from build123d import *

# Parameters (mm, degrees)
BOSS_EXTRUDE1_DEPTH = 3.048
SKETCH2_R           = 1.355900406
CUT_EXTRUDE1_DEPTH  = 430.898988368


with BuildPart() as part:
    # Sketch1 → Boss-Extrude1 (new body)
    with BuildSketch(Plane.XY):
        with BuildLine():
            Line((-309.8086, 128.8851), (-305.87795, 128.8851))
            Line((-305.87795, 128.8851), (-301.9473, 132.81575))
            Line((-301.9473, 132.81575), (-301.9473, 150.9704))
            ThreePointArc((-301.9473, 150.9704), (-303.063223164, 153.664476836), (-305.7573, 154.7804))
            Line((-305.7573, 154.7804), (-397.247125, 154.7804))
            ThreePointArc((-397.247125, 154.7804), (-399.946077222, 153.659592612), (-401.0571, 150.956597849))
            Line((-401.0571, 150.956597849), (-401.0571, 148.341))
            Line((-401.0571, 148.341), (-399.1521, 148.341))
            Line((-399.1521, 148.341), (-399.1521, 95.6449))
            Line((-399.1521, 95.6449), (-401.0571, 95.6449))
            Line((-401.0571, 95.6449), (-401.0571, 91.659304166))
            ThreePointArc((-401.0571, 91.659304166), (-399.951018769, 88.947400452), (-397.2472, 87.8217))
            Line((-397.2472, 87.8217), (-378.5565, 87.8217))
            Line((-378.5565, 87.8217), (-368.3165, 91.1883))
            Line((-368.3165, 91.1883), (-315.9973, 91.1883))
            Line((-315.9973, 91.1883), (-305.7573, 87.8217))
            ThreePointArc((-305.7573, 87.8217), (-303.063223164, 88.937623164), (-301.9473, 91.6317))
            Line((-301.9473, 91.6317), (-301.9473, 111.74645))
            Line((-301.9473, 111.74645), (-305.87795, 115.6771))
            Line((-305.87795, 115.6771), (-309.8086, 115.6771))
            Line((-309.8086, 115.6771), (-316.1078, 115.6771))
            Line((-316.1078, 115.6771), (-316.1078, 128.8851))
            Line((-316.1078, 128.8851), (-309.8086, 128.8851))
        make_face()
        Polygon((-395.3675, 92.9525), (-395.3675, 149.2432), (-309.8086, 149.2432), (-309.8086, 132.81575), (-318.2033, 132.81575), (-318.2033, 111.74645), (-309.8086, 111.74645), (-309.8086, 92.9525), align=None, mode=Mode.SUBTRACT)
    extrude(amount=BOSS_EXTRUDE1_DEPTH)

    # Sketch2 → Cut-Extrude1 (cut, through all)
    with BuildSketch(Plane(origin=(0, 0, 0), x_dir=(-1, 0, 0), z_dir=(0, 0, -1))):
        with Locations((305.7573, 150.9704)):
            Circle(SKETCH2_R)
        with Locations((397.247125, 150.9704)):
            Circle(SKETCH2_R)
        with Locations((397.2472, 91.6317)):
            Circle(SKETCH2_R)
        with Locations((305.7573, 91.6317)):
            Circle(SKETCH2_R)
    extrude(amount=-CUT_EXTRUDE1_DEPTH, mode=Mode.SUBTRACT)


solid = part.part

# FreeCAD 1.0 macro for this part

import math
import FreeCAD as App
import Part
import Sketcher
Q = App.Units.Quantity

doc = App.newDocument("Part")
body = doc.addObject("PartDesign::Body", "Body")

# Sketch on XY plane
sketch1 = body.newObject("Sketcher::SketchObject", "Sketch")
sketch1.AttachmentSupport = (doc.getObject("XY_Plane"), [""])
sketch1.MapMode = "FlatFace"
sketch1.addGeometry(Part.LineSegment(App.Vector(-305.87795, 128.8851, 0), App.Vector(-301.9473, 132.81575, 0)), False)
sketch1.addGeometry(Part.LineSegment(App.Vector(-301.9473, 132.81575, 0), App.Vector(-301.9473, 150.9704, 0)), False)
sketch1.addGeometry(Part.ArcOfCircle(Part.Circle(App.Vector(-305.7573, 150.9704, 0), App.Vector(0, 0, 1), 3.81), math.radians(0), math.radians(90)), False)
sketch1.addGeometry(Part.LineSegment(App.Vector(-305.7573, 154.7804, 0), App.Vector(-397.247125, 154.7804, 0)), False)
sketch1.addGeometry(Part.ArcOfCircle(Part.Circle(App.Vector(-397.247125, 150.9704, 0), App.Vector(0, 0, 1), 3.81), math.radians(90), math.radians(180.207561)), False)
sketch1.addGeometry(Part.LineSegment(App.Vector(-401.0571, 150.956598, 0), App.Vector(-401.0571, 148.341, 0)), False)
sketch1.addGeometry(Part.LineSegment(App.Vector(-401.0571, 148.341, 0), App.Vector(-399.1521, 148.341, 0)), False)
sketch1.addGeometry(Part.LineSegment(App.Vector(-399.1521, 148.341, 0), App.Vector(-399.1521, 95.6449, 0)), False)
sketch1.addGeometry(Part.LineSegment(App.Vector(-399.1521, 95.6449, 0), App.Vector(-401.0571, 95.6449, 0)), False)
sketch1.addGeometry(Part.LineSegment(App.Vector(-401.0571, 95.6449, 0), App.Vector(-401.0571, 91.659304, 0)), False)
sketch1.addGeometry(Part.ArcOfCircle(Part.Circle(App.Vector(-397.2472, 91.6317, 0), App.Vector(0, 0, 1), 3.81), math.radians(179.584878), math.radians(270)), False)
sketch1.addGeometry(Part.LineSegment(App.Vector(-397.2472, 87.8217, 0), App.Vector(-378.5565, 87.8217, 0)), False)
sketch1.addGeometry(Part.LineSegment(App.Vector(-378.5565, 87.8217, 0), App.Vector(-368.3165, 91.1883, 0)), False)
sketch1.addGeometry(Part.LineSegment(App.Vector(-368.3165, 91.1883, 0), App.Vector(-315.9973, 91.1883, 0)), False)
sketch1.addGeometry(Part.LineSegment(App.Vector(-315.9973, 91.1883, 0), App.Vector(-305.7573, 87.8217, 0)), False)
sketch1.addGeometry(Part.ArcOfCircle(Part.Circle(App.Vector(-305.7573, 91.6317, 0), App.Vector(0, 0, 1), 3.81), math.radians(-90), math.radians(0)), False)
sketch1.addGeometry(Part.LineSegment(App.Vector(-301.9473, 91.6317, 0), App.Vector(-301.9473, 111.74645, 0)), False)
sketch1.addGeometry(Part.LineSegment(App.Vector(-301.9473, 111.74645, 0), App.Vector(-305.87795, 115.6771, 0)), False)
sketch1.addGeometry(Part.LineSegment(App.Vector(-305.87795, 115.6771, 0), App.Vector(-316.1078, 115.6771, 0)), False)
sketch1.addGeometry(Part.LineSegment(App.Vector(-316.1078, 115.6771, 0), App.Vector(-316.1078, 128.8851, 0)), False)
sketch1.addGeometry(Part.LineSegment(App.Vector(-316.1078, 128.8851, 0), App.Vector(-305.87795, 128.8851, 0)), False)
sketch1.addGeometry(Part.LineSegment(App.Vector(-309.8086, 92.9525, 0), App.Vector(-395.3675, 92.9525, 0)), False)
sketch1.addGeometry(Part.LineSegment(App.Vector(-395.3675, 92.9525, 0), App.Vector(-395.3675, 149.2432, 0)), False)
sketch1.addGeometry(Part.LineSegment(App.Vector(-395.3675, 149.2432, 0), App.Vector(-309.8086, 149.2432, 0)), False)
sketch1.addGeometry(Part.LineSegment(App.Vector(-309.8086, 149.2432, 0), App.Vector(-309.8086, 132.81575, 0)), False)
sketch1.addGeometry(Part.LineSegment(App.Vector(-309.8086, 132.81575, 0), App.Vector(-318.2033, 132.81575, 0)), False)
sketch1.addGeometry(Part.LineSegment(App.Vector(-318.2033, 132.81575, 0), App.Vector(-318.2033, 111.74645, 0)), False)
sketch1.addGeometry(Part.LineSegment(App.Vector(-318.2033, 111.74645, 0), App.Vector(-309.8086, 111.74645, 0)), False)
sketch1.addGeometry(Part.LineSegment(App.Vector(-309.8086, 111.74645, 0), App.Vector(-309.8086, 92.9525, 0)), False)
sketch1.addConstraint(Sketcher.Constraint("Coincident", 0, 2, 1, 1))
sketch1.addConstraint(Sketcher.Constraint("Tangent", 1, 2, 2, 1))
sketch1.addConstraint(Sketcher.Constraint("Tangent", 2, 2, 3, 1))
sketch1.addConstraint(Sketcher.Constraint("Tangent", 3, 2, 4, 1))
sketch1.addConstraint(Sketcher.Constraint("Coincident", 4, 2, 5, 1))
sketch1.addConstraint(Sketcher.Constraint("Coincident", 5, 2, 6, 1))
sketch1.addConstraint(Sketcher.Constraint("Coincident", 6, 2, 7, 1))
sketch1.addConstraint(Sketcher.Constraint("Coincident", 7, 2, 8, 1))
sketch1.addConstraint(Sketcher.Constraint("Coincident", 8, 2, 9, 1))
sketch1.addConstraint(Sketcher.Constraint("Coincident", 9, 2, 10, 1))
sketch1.addConstraint(Sketcher.Constraint("Tangent", 10, 2, 11, 1))
sketch1.addConstraint(Sketcher.Constraint("Coincident", 11, 2, 12, 1))
sketch1.addConstraint(Sketcher.Constraint("Coincident", 12, 2, 13, 1))
sketch1.addConstraint(Sketcher.Constraint("Coincident", 13, 2, 14, 1))
sketch1.addConstraint(Sketcher.Constraint("Coincident", 14, 2, 15, 1))
sketch1.addConstraint(Sketcher.Constraint("Tangent", 15, 2, 16, 1))
sketch1.addConstraint(Sketcher.Constraint("Coincident", 16, 2, 17, 1))
sketch1.addConstraint(Sketcher.Constraint("Coincident", 17, 2, 18, 1))
sketch1.addConstraint(Sketcher.Constraint("Coincident", 18, 2, 19, 1))
sketch1.addConstraint(Sketcher.Constraint("Coincident", 19, 2, 20, 1))
sketch1.addConstraint(Sketcher.Constraint("Coincident", 20, 2, 0, 1))
sketch1.addConstraint(Sketcher.Constraint("Coincident", 21, 2, 22, 1))
sketch1.addConstraint(Sketcher.Constraint("Coincident", 22, 2, 23, 1))
sketch1.addConstraint(Sketcher.Constraint("Coincident", 23, 2, 24, 1))
sketch1.addConstraint(Sketcher.Constraint("Coincident", 24, 2, 25, 1))
sketch1.addConstraint(Sketcher.Constraint("Coincident", 25, 2, 26, 1))
sketch1.addConstraint(Sketcher.Constraint("Coincident", 26, 2, 27, 1))
sketch1.addConstraint(Sketcher.Constraint("Coincident", 27, 2, 28, 1))
sketch1.addConstraint(Sketcher.Constraint("Coincident", 28, 2, 21, 1))
sketch1.addConstraint(Sketcher.Constraint("Vertical", 1))
sketch1.addConstraint(Sketcher.Constraint("Horizontal", 3))
sketch1.addConstraint(Sketcher.Constraint("Vertical", 5))
sketch1.addConstraint(Sketcher.Constraint("Horizontal", 6))
sketch1.addConstraint(Sketcher.Constraint("Vertical", 7))
sketch1.addConstraint(Sketcher.Constraint("Horizontal", 8))
sketch1.addConstraint(Sketcher.Constraint("Vertical", 9))
sketch1.addConstraint(Sketcher.Constraint("Horizontal", 11))
sketch1.addConstraint(Sketcher.Constraint("Horizontal", 13))
sketch1.addConstraint(Sketcher.Constraint("Vertical", 16))
sketch1.addConstraint(Sketcher.Constraint("Horizontal", 18))
sketch1.addConstraint(Sketcher.Constraint("Vertical", 19))
sketch1.addConstraint(Sketcher.Constraint("Horizontal", 20))
sketch1.addConstraint(Sketcher.Constraint("Horizontal", 21))
sketch1.addConstraint(Sketcher.Constraint("Vertical", 22))
sketch1.addConstraint(Sketcher.Constraint("Horizontal", 23))
sketch1.addConstraint(Sketcher.Constraint("Vertical", 24))
sketch1.addConstraint(Sketcher.Constraint("Horizontal", 25))
sketch1.addConstraint(Sketcher.Constraint("Vertical", 26))
sketch1.addConstraint(Sketcher.Constraint("Horizontal", 27))
sketch1.addConstraint(Sketcher.Constraint("Vertical", 28))
sketch1.addConstraint(Sketcher.Constraint("Equal", 2, 4))
sketch1.addConstraint(Sketcher.Constraint("Equal", 4, 10))
sketch1.addConstraint(Sketcher.Constraint("Equal", 10, 15))
sketch1.addConstraint(Sketcher.Constraint("Perpendicular", 0, 17))
sketch1.addConstraint(Sketcher.Constraint("Horizontal", 10, 3, 15, 3))
sketch1.addConstraint(Sketcher.Constraint("Horizontal", 0, 2, 24, 2))
sketch1.addConstraint(Sketcher.Constraint("Horizontal", 16, 2, 26, 2))
sketch1.addConstraint(Sketcher.Constraint("Vertical", 2, 3, 15, 3))
sketch1.addConstraint(Sketcher.Constraint("Vertical", 5, 2, 8, 2))
sketch1.addConstraint(Sketcher.Constraint("Vertical", 2, 2, 14, 2))
sketch1.addConstraint(Sketcher.Constraint("Vertical", 17, 2, 20, 2))
sketch1.addConstraint(Sketcher.Constraint("Vertical", 24, 2, 27, 2))
sketch1.addConstraint(Sketcher.Constraint("Equal", 12, 14))
sketch1.addConstraint(Sketcher.Constraint("Equal", 0, 17))
sketch1.addConstraint(Sketcher.Constraint("Radius", 2, Q("0.15 in")))
sketch1.addConstraint(Sketcher.Constraint("DistanceY", 19, 1, 19, 2, Q("0.52 in")))
sketch1.addConstraint(Sketcher.Constraint("DistanceX", 6, 1, 6, 2, Q("0.075 in")))
sketch1.addConstraint(Sketcher.Constraint("DistanceX", 25, 2, 0, 2, Q("0.64 in")))
sketch1.addConstraint(Sketcher.Constraint("DistanceX", 25, 2, 25, 1, Q("0.3305 in")))
sketch1.addConstraint(Sketcher.Constraint("DistanceY", 26, 2, 26, 1, Q("0.8295 in")))
sketch1.addConstraint(Sketcher.Constraint("DistanceY", 10, 3, 7, 2, Q("0.158 in")))
sketch1.addConstraint(Sketcher.Constraint("DistanceX", 7, 2, 12, 2, Q("1.214 in")))
sketch1.addConstraint(Sketcher.Constraint("DistanceY", 10, 3, 21, 2, Q("0.052 in")))
sketch1.addConstraint(Sketcher.Constraint("DistanceX", 7, 2, 21, 2, Q("0.149 in")))
sketch1.addConstraint(Sketcher.Constraint("DistanceY", 22, 2, 4, 3, Q("0.068 in")))
sketch1.addConstraint(Sketcher.Constraint("DistanceX", 19, 2, 24, 2, Q("0.248 in")))
sketch1.addConstraint(Sketcher.Constraint("DistanceX", 11, 1, 11, 2, Q("18.6907 mm")))
sketch1.addConstraint(Sketcher.Constraint("DistanceX", 13, 1, 13, 2, Q("52.3192 mm")))
sketch1.addConstraint(Sketcher.Constraint("DistanceX", 21, 2, 21, 1, Q("85.5589 mm")))
sketch1.addConstraint(Sketcher.Constraint("DistanceY", 7, 2, 7, 1, Q("52.6961 mm")))
sketch1.addConstraint(Sketcher.Constraint("DistanceY", 22, 1, 22, 2, Q("56.2907 mm")))
sketch1.addConstraint(Sketcher.Constraint("DistanceY", 19, 2, 2, 3, Q("0.8695 in")))
sketch1.addConstraint(Sketcher.Constraint("DistanceX", 2, 3, -1, 1, Q("305.7573 mm")))
sketch1.addConstraint(Sketcher.Constraint("DistanceY", -1, 1, 2, 3, Q("150.9704 mm")))
sketch1.addConstraint(Sketcher.Constraint("DistanceY", -1, 1, 12, 2, Q("91.1883 mm")))
sketch1.addConstraint(Sketcher.Constraint("DistanceX", 3, 2, 3, 1, Q("91.489825 mm")))
pad1 = body.newObject("PartDesign::Pad", "Pad")
pad1.Profile = sketch1
pad1.Length = Q("0.12 in")

# Sketch on XY plane
sketch2 = body.newObject("Sketcher::SketchObject", "Sketch001")
sketch2.AttachmentSupport = (doc.getObject("XY_Plane"), [""])
sketch2.MapMode = "FlatFace"
sketch2.addGeometry(Part.Circle(App.Vector(-305.7573, 150.9704, 0), App.Vector(0, 0, 1), 1.3559), False)
sketch2.addGeometry(Part.Circle(App.Vector(-397.247125, 150.9704, 0), App.Vector(0, 0, 1), 1.3559), False)
sketch2.addGeometry(Part.Circle(App.Vector(-397.2472, 91.6317, 0), App.Vector(0, 0, 1), 1.3559), False)
sketch2.addGeometry(Part.Circle(App.Vector(-305.7573, 91.6317, 0), App.Vector(0, 0, 1), 1.3559), False)
sketch2.addConstraint(Sketcher.Constraint("Equal", 0, 1))
sketch2.addConstraint(Sketcher.Constraint("Equal", 1, 2))
sketch2.addConstraint(Sketcher.Constraint("Equal", 2, 3))
sketch2.addConstraint(Sketcher.Constraint("Horizontal", 0, 3, 1, 3))
sketch2.addConstraint(Sketcher.Constraint("Horizontal", 2, 3, 3, 3))
sketch2.addConstraint(Sketcher.Constraint("Vertical", 0, 3, 3, 3))
sketch2.addConstraint(Sketcher.Constraint("Diameter", 0, Q("2.711801 mm")))
sketch2.addConstraint(Sketcher.Constraint("DistanceX", 0, 3, -1, 1, Q("305.7573 mm")))
sketch2.addConstraint(Sketcher.Constraint("DistanceY", -1, 1, 0, 3, Q("150.9704 mm")))
sketch2.addConstraint(Sketcher.Constraint("DistanceX", 2, 3, -1, 1, Q("397.2472 mm")))
sketch2.addConstraint(Sketcher.Constraint("DistanceY", -1, 1, 2, 3, Q("91.6317 mm")))
sketch2.addConstraint(Sketcher.Constraint("DistanceX", 1, 3, -1, 1, Q("397.247125 mm")))
pocket1 = body.newObject("PartDesign::Pocket", "Pocket")
pocket1.Profile = sketch2
pocket1.Type = "ThroughAll"
pocket1.Reversed = True

doc.recompute()
